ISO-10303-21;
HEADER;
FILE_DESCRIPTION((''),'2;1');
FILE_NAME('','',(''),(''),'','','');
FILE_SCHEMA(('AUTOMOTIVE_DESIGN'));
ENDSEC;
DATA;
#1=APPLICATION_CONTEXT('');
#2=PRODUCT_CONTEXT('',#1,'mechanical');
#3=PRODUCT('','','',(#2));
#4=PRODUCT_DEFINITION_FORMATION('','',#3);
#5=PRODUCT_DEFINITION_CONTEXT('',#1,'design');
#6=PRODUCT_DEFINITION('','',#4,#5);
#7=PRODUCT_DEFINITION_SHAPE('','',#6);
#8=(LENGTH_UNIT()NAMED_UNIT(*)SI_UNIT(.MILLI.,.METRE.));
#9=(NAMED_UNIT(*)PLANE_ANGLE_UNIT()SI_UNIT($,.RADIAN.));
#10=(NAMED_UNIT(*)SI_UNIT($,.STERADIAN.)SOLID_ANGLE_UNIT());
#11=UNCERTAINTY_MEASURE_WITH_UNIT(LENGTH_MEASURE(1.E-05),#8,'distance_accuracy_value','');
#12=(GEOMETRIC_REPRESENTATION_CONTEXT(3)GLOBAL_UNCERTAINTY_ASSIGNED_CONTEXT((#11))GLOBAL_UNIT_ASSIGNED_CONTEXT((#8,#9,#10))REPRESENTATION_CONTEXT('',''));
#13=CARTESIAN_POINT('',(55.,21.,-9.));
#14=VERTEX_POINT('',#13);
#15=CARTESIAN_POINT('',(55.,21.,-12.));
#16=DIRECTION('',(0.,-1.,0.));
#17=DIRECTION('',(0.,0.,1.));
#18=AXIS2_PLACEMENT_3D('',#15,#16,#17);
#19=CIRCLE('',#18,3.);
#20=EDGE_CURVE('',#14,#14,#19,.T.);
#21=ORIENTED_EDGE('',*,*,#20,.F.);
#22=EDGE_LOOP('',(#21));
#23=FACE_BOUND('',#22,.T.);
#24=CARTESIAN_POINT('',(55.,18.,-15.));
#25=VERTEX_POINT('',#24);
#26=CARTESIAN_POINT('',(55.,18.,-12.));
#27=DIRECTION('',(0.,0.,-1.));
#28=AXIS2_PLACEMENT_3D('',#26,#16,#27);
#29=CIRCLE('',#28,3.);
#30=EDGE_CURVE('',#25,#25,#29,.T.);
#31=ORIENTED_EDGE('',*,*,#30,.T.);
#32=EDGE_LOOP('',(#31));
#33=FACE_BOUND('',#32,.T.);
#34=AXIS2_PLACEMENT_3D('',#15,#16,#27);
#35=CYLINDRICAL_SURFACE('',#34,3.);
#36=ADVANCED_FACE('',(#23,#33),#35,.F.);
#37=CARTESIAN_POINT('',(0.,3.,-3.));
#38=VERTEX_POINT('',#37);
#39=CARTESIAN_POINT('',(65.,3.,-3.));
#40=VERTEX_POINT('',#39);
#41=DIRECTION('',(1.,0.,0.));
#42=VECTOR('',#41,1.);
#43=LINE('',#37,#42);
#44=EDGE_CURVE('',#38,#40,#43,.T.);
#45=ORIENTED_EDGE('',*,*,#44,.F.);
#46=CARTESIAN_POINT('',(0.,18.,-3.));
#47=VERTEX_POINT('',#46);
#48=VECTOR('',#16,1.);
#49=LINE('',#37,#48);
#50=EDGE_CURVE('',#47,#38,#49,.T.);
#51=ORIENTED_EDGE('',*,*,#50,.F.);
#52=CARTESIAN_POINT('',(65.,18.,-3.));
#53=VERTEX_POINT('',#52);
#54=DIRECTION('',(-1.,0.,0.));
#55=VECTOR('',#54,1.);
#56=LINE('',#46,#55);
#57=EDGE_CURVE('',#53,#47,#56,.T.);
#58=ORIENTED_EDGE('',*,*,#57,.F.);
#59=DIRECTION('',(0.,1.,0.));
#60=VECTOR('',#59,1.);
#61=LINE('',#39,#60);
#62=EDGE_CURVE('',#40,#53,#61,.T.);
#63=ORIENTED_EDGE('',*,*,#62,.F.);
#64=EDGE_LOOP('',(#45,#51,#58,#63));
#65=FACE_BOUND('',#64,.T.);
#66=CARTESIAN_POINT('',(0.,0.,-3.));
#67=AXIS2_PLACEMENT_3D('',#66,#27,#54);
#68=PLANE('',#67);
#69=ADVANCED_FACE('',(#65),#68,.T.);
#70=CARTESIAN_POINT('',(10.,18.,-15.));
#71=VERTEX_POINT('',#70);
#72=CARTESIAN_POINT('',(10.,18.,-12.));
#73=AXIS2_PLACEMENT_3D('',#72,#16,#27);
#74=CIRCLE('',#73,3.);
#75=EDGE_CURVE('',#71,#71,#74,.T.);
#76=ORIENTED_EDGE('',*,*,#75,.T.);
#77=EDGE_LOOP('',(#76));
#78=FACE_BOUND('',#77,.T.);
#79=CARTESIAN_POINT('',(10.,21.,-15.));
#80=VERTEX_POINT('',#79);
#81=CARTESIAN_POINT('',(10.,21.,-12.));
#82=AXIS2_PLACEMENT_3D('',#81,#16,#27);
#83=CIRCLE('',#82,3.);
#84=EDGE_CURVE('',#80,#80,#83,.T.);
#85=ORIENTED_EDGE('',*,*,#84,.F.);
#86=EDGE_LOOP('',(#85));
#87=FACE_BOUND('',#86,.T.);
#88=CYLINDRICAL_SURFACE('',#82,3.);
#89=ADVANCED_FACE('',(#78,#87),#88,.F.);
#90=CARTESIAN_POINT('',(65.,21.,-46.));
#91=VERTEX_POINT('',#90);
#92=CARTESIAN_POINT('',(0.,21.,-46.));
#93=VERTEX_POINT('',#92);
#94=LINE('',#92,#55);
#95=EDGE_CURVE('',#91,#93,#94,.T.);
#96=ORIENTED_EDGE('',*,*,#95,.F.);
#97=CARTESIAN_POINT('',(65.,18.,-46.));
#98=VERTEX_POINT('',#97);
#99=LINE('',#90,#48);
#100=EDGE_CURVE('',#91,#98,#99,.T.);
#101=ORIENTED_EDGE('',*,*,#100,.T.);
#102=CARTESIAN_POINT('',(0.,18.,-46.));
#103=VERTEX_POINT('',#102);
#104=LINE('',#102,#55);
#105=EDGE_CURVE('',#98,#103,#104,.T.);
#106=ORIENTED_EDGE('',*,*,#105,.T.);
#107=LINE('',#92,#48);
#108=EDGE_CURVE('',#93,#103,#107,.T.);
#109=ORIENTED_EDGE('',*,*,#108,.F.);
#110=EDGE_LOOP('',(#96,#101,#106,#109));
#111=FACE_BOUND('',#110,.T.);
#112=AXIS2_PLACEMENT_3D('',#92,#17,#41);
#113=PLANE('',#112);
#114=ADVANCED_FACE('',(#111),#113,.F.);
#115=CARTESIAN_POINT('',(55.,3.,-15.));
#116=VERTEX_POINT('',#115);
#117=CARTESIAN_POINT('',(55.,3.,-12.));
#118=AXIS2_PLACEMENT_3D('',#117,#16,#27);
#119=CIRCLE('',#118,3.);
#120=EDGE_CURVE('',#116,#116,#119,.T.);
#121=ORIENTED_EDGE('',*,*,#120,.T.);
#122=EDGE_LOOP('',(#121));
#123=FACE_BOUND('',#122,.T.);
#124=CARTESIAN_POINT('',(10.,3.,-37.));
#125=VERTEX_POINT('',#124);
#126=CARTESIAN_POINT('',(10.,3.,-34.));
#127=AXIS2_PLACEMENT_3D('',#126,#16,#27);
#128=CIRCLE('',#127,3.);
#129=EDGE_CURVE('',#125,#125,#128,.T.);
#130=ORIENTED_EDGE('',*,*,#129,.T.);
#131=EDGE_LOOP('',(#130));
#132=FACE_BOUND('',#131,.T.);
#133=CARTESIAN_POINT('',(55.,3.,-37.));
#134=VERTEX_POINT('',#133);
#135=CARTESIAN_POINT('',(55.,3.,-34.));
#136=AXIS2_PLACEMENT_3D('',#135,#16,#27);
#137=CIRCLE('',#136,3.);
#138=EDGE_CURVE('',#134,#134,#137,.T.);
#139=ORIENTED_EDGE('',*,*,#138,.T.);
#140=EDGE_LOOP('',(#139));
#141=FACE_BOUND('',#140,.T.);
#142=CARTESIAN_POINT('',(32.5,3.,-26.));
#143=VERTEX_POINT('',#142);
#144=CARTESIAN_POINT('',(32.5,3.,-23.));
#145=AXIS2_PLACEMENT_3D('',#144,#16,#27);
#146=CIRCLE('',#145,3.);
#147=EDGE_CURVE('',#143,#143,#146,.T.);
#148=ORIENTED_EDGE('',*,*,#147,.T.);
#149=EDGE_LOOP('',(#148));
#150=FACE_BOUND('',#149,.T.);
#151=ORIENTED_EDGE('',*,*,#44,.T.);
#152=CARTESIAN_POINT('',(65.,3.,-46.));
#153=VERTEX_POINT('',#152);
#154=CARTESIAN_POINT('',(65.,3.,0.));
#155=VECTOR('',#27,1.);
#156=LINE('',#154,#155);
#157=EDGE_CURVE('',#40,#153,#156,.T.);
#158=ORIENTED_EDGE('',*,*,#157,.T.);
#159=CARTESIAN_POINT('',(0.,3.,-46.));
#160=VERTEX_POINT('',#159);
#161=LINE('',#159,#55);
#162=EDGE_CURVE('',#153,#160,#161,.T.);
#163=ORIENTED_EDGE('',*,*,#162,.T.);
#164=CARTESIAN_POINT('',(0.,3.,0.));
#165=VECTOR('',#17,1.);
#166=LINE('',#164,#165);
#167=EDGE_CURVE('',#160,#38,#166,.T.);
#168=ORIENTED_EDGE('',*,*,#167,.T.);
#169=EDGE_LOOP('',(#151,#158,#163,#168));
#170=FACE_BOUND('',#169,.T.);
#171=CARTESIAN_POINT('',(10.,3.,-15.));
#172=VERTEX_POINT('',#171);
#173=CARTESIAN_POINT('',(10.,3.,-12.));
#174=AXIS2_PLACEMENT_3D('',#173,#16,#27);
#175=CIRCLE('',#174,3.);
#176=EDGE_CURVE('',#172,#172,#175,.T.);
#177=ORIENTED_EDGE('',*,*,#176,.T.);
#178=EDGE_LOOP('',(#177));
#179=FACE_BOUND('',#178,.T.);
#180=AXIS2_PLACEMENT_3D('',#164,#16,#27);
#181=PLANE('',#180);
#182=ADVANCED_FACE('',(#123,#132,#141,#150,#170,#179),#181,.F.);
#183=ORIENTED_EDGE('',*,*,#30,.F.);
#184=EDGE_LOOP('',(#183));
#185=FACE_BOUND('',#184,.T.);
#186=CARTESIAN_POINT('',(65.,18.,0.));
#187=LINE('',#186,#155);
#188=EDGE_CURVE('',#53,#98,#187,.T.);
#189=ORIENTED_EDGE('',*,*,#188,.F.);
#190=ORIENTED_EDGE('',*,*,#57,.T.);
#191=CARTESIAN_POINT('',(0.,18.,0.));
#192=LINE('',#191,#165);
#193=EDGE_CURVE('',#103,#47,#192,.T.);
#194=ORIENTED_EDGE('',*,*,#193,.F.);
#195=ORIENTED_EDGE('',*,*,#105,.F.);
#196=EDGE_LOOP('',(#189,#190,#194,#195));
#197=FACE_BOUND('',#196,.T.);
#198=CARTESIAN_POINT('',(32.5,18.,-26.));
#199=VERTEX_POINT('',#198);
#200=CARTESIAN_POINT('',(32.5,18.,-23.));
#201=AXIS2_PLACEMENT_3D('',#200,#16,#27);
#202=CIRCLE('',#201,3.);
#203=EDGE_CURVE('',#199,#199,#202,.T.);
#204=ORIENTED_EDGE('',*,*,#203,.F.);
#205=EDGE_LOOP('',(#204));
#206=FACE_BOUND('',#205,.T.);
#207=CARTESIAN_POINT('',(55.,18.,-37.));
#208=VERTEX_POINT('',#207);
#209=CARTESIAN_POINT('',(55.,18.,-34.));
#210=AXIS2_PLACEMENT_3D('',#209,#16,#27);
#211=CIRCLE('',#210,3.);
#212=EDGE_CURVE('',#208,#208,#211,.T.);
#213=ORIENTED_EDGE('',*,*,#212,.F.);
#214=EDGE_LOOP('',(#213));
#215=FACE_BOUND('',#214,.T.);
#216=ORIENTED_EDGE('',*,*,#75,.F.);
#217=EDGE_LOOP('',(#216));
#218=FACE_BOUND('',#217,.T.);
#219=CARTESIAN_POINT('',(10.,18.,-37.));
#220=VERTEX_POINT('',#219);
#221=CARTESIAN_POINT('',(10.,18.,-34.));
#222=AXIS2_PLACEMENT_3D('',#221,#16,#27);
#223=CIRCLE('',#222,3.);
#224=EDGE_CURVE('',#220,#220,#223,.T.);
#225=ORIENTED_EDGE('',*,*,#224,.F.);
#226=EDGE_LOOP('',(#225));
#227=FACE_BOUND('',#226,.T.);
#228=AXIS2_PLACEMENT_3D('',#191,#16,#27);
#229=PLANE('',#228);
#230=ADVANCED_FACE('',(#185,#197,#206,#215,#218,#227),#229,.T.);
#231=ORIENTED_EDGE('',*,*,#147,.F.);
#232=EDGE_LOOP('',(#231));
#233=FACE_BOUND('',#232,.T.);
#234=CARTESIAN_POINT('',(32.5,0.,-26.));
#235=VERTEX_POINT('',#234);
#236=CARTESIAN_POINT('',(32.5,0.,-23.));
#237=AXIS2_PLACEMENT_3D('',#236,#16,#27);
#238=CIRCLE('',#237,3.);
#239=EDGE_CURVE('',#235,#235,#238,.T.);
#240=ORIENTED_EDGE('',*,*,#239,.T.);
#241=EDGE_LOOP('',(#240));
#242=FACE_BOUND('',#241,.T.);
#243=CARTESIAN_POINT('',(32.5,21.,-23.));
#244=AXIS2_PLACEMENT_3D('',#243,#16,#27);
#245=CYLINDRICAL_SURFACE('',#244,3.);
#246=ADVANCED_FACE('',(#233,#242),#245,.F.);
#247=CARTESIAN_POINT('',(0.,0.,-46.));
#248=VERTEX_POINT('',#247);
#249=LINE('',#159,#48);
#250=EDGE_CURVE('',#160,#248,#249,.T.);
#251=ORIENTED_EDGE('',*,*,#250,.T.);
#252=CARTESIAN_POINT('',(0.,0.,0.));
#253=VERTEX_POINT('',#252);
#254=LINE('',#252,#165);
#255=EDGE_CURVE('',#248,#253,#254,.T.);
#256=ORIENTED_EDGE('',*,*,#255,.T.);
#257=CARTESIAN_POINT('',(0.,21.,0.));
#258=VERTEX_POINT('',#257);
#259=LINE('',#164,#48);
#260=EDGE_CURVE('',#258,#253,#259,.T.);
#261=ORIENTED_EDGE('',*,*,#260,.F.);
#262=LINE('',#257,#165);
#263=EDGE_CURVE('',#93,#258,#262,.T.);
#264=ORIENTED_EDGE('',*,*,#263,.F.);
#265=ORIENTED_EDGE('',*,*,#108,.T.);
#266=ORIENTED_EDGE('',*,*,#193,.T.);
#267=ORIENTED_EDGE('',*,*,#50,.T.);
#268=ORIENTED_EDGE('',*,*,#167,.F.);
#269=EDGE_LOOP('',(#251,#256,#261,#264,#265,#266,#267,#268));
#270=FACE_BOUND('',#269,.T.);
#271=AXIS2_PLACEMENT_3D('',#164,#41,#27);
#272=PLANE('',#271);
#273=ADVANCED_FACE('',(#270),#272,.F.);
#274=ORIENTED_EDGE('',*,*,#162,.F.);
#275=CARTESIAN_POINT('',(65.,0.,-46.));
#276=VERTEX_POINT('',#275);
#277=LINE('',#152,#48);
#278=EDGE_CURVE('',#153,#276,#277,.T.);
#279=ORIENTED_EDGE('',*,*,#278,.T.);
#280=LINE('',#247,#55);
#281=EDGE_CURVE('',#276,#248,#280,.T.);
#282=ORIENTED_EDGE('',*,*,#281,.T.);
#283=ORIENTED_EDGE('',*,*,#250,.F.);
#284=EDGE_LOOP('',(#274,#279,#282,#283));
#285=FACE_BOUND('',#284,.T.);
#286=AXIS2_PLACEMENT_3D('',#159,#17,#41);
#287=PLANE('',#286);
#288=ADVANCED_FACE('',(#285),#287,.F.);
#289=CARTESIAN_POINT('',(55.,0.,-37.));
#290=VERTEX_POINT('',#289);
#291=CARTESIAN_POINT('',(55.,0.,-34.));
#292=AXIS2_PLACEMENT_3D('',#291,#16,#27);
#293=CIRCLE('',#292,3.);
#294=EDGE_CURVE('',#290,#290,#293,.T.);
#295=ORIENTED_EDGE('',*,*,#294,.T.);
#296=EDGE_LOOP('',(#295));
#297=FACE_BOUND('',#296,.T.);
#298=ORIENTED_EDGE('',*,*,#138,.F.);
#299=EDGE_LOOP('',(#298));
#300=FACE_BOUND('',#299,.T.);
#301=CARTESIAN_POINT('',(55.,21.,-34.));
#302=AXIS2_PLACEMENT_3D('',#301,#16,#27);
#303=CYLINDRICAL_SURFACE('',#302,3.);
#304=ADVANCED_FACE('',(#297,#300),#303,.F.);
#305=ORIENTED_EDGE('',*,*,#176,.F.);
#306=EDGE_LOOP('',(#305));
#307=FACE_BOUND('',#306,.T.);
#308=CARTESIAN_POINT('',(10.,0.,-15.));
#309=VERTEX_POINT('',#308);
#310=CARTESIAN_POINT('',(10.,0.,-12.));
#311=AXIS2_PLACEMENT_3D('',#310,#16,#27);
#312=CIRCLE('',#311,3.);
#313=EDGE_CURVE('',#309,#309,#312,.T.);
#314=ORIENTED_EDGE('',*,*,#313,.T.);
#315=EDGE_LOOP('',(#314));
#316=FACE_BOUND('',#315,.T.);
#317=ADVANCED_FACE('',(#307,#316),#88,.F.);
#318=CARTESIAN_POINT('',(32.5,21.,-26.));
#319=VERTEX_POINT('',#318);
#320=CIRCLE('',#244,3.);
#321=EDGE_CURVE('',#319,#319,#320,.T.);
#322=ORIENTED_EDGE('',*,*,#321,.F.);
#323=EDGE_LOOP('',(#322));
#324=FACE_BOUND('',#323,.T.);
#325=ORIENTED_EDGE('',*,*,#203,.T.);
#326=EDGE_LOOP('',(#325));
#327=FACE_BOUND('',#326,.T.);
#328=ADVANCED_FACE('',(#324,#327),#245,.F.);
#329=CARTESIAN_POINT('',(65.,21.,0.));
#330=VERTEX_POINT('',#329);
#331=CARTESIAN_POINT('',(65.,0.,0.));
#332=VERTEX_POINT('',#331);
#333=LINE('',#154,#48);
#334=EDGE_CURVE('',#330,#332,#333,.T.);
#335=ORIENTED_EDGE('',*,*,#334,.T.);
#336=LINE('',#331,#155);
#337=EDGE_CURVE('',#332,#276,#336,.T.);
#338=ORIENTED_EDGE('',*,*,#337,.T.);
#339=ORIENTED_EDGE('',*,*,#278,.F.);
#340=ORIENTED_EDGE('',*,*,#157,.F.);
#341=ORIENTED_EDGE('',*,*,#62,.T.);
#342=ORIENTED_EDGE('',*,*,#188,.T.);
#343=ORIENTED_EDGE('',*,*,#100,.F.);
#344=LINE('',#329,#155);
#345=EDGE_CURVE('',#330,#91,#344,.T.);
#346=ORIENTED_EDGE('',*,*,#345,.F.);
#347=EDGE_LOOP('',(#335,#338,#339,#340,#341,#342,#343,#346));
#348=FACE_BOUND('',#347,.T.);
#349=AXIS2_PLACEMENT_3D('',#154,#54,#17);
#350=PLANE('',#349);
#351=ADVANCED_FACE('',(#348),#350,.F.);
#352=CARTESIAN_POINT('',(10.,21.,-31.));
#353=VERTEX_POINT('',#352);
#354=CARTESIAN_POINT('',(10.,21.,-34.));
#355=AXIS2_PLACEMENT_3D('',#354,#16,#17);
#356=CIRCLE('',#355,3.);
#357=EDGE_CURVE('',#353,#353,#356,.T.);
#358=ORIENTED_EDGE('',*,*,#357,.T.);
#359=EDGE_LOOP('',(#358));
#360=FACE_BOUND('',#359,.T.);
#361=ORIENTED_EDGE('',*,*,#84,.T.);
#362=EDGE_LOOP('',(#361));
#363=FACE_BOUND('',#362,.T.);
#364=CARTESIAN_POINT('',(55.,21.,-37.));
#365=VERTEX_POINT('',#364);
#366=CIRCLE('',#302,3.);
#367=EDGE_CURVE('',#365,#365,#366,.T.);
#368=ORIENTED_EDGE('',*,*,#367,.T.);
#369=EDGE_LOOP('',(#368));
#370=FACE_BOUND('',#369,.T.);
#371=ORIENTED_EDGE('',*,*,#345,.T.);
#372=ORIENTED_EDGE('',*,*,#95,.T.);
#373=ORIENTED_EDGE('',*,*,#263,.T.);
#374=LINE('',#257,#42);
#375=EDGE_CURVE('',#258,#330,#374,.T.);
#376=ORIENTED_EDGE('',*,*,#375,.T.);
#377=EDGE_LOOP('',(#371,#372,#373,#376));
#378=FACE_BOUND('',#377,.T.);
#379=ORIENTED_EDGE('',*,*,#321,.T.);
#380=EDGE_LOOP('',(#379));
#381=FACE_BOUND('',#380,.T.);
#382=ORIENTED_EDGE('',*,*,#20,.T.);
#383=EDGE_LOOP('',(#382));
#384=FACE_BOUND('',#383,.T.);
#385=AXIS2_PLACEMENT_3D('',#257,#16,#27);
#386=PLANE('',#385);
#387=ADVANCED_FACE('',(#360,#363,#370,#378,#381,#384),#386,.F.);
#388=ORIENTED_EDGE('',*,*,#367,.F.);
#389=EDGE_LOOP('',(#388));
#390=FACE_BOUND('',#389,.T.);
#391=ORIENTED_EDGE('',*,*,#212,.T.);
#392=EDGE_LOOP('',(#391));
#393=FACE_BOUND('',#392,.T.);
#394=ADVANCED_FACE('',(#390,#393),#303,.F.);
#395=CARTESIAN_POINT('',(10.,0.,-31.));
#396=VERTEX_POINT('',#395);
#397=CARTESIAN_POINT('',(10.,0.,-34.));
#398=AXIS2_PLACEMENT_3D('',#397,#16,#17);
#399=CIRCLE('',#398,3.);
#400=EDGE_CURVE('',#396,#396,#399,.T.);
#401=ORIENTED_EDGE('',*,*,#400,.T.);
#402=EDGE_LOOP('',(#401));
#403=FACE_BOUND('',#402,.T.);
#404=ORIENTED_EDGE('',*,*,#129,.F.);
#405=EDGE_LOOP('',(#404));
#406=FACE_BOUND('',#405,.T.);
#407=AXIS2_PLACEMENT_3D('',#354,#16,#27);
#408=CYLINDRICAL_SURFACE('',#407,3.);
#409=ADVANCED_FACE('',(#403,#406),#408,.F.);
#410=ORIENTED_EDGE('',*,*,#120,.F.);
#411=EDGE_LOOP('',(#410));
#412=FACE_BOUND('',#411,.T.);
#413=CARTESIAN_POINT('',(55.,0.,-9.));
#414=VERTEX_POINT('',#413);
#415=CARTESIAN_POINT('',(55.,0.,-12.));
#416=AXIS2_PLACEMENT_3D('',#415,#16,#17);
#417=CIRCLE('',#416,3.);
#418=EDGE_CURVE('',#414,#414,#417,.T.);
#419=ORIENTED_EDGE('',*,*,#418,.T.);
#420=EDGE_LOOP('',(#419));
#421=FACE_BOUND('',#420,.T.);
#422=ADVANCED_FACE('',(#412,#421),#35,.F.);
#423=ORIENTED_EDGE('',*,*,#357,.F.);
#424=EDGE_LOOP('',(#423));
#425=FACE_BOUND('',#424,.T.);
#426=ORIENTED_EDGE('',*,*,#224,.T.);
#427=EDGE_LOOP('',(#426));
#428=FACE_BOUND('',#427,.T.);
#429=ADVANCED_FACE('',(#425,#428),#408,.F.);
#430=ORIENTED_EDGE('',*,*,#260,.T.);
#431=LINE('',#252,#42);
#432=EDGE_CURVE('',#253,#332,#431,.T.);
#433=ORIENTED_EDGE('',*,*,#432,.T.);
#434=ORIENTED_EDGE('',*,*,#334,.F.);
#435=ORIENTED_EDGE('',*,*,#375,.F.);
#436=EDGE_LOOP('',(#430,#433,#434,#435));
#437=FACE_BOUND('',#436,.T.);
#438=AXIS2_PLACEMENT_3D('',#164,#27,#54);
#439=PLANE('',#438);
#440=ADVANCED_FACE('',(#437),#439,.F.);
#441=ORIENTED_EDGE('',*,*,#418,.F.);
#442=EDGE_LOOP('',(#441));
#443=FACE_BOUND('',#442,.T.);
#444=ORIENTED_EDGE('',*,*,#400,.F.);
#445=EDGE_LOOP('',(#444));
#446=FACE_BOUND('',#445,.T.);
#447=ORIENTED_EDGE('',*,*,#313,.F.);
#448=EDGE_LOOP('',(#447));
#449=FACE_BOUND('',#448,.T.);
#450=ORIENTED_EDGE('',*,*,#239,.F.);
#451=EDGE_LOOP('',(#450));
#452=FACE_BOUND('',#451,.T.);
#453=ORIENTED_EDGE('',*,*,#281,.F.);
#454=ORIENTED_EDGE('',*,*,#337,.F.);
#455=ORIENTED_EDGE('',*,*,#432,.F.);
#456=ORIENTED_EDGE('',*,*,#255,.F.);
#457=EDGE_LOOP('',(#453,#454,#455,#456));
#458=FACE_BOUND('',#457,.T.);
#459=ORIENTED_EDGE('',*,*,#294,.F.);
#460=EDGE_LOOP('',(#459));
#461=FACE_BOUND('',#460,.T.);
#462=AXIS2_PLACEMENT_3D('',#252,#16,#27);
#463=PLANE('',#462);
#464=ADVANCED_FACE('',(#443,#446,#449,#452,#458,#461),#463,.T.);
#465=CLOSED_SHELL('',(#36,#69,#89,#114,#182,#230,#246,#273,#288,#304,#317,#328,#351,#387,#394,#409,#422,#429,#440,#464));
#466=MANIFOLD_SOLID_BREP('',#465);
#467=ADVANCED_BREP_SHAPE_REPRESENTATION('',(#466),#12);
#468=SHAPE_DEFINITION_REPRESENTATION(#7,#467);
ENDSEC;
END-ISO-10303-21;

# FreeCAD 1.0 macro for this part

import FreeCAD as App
import Part
import Sketcher
from FreeCAD import Vector


def add_polygon(sketch, points):
    """Adds a closed chain of lines whose ends are joined by coincident constraints."""
    first, n = sketch.GeometryCount, len(points)
    for a, b in zip(points, points[1:] + points[:1]):
        sketch.addGeometry(Part.LineSegment(App.Vector(*a, 0), App.Vector(*b, 0)), False)
    for i in range(n):
        sketch.addConstraint(Sketcher.Constraint("Coincident", first + i, 2, first + (i + 1) % n, 1))

doc = App.newDocument("Part")
body = doc.addObject("PartDesign::Body", "Body")

sketch1 = body.newObject("Sketcher::SketchObject", "Sketch")
sketch1.AttachmentSupport = (doc.getObject("XZ_Plane"), [""])
sketch1.MapMode = "FlatFace"
add_polygon(sketch1, [(0, -46), (0, 0), (65, 0), (65, -46)])
sketch1.addConstraint(Sketcher.Constraint("Vertical", 0))
sketch1.addConstraint(Sketcher.Constraint("Horizontal", 1))
sketch1.addConstraint(Sketcher.Constraint("Vertical", 2))
sketch1.addConstraint(Sketcher.Constraint("Horizontal", 3))
sketch1.addConstraint(Sketcher.Constraint("Coincident", 0, 2, -1, 1))
sketch1.addConstraint(Sketcher.Constraint("DistanceX", 1, 1, 1, 2, 65.0))
sketch1.addConstraint(Sketcher.Constraint("DistanceY", 0, 1, 0, 2, 46.0))
pad1 = body.newObject("PartDesign::Pad", "Pad")
pad1.Profile = sketch1
pad1.Length = 3
pad1.Reversed = True

sketch2 = body.newObject("Sketcher::SketchObject", "Sketch001")
sketch2.AttachmentSupport = (doc.getObject("XY_Plane"), [""])
sketch2.MapMode = "FlatFace"
add_polygon(sketch2, [(0, 18), (0, 3), (65, 3), (65, 18)])
sketch2.addConstraint(Sketcher.Constraint("Vertical", 0))
sketch2.addConstraint(Sketcher.Constraint("Horizontal", 1))
sketch2.addConstraint(Sketcher.Constraint("Vertical", 2))
sketch2.addConstraint(Sketcher.Constraint("Horizontal", 3))
sketch2.addConstraint(Sketcher.Constraint("PointOnObject", 0, 2, -2))
sketch2.addConstraint(Sketcher.Constraint("DistanceX", 1, 1, 1, 2, 65.0))
sketch2.addConstraint(Sketcher.Constraint("DistanceY", 0, 2, 0, 1, 15.0))
sketch2.addConstraint(Sketcher.Constraint("DistanceY", -1, 1, 0, 2, 3.0))
pad2 = body.newObject("PartDesign::Pad", "Pad001")
pad2.Profile = sketch2
pad2.Length = 3
pad2.Reversed = True

sketch3 = body.newObject("Sketcher::SketchObject", "Sketch002")
sketch3.AttachmentSupport = (doc.getObject("XZ_Plane"), [""])
sketch3.MapMode = "FlatFace"
sketch3.AttachmentOffset = App.Placement(Vector(0, 0, -18), App.Rotation())
add_polygon(sketch3, [(0, -46), (0, 0), (65, 0), (65, -46)])
sketch3.addConstraint(Sketcher.Constraint("Vertical", 0))
sketch3.addConstraint(Sketcher.Constraint("Horizontal", 1))
sketch3.addConstraint(Sketcher.Constraint("Vertical", 2))
sketch3.addConstraint(Sketcher.Constraint("Horizontal", 3))
sketch3.addConstraint(Sketcher.Constraint("Coincident", 0, 2, -1, 1))
sketch3.addConstraint(Sketcher.Constraint("DistanceX", 1, 1, 1, 2, 65.0))
sketch3.addConstraint(Sketcher.Constraint("DistanceY", 0, 1, 0, 2, 46.0))
pad3 = body.newObject("PartDesign::Pad", "Pad002")
pad3.Profile = sketch3
pad3.Length = 3
pad3.Reversed = True

sketch4 = body.newObject("Sketcher::SketchObject", "Sketch003")
sketch4.AttachmentSupport = (doc.getObject("XZ_Plane"), [""])
sketch4.MapMode = "FlatFace"
sketch4.addGeometry(Part.Circle(Vector(32.5, -23, 0), Vector(0, 0, 1), 3), False)
sketch4.addGeometry(Part.Circle(Vector(55, -34, 0), Vector(0, 0, 1), 3), False)
sketch4.addGeometry(Part.Circle(Vector(55, -12, 0), Vector(0, 0, 1), 3), False)
sketch4.addGeometry(Part.Circle(Vector(10, -34, 0), Vector(0, 0, 1), 3), False)
sketch4.addGeometry(Part.Circle(Vector(10, -12, 0), Vector(0, 0, 1), 3), False)
sketch4.addConstraint(Sketcher.Constraint("Equal", 0, 1))
sketch4.addConstraint(Sketcher.Constraint("Equal", 1, 2))
sketch4.addConstraint(Sketcher.Constraint("Equal", 2, 3))
sketch4.addConstraint(Sketcher.Constraint("Equal", 3, 4))
sketch4.addConstraint(Sketcher.Constraint("Horizontal", 1, 3, 3, 3))
sketch4.addConstraint(Sketcher.Constraint("Horizontal", 2, 3, 4, 3))
sketch4.addConstraint(Sketcher.Constraint("Vertical", 1, 3, 2, 3))
sketch4.addConstraint(Sketcher.Constraint("Vertical", 3, 3, 4, 3))
sketch4.addConstraint(Sketcher.Constraint("Diameter", 0, 6.0))
sketch4.addConstraint(Sketcher.Constraint("DistanceY", 0, 3, -1, 1, 23.0))
sketch4.addConstraint(Sketcher.Constraint("DistanceX", -1, 1, 1, 3, 55.0))
sketch4.addConstraint(Sketcher.Constraint("DistanceY", 1, 3, -1, 1, 34.0))
sketch4.addConstraint(Sketcher.Constraint("DistanceY", 2, 3, -1, 1, 12.0))
sketch4.addConstraint(Sketcher.Constraint("DistanceX", -1, 1, 3, 3, 10.0))
sketch4.addConstraint(Sketcher.Constraint("DistanceX", -1, 1, 0, 3, 32.5))
pocket1 = body.newObject("PartDesign::Pocket", "Pocket")
pocket1.Profile = sketch4
pocket1.Type = "ThroughAll"

doc.recompute()
